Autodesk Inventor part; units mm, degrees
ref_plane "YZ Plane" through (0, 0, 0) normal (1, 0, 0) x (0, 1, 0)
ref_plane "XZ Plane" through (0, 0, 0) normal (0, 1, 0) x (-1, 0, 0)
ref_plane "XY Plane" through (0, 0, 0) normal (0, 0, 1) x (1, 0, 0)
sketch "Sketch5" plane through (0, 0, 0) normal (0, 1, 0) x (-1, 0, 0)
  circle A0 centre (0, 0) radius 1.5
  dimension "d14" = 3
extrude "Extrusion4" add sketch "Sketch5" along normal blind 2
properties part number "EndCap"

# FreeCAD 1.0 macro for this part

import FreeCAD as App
import Part
import Sketcher
Q = App.Units.Quantity

doc = App.newDocument("Part")
params = doc.addObject("Spreadsheet::Sheet", "Params")
for row, (alias, value) in enumerate([
    ("sketch1_diameter", "3 mm"),
    ("pad1_length", "2 mm"),
], start=1):
    params.set(f"A{row}", alias)
    params.set(f"B{row}", "=" + value)
    params.setAlias(f"B{row}", alias)

body = doc.addObject("PartDesign::Body", "Body")

# Sketch on XZ plane
sketch1 = body.newObject("Sketcher::SketchObject", "Sketch")
sketch1.AttachmentSupport = (doc.getObject("XZ_Plane"), [""])
sketch1.MapMode = "FlatFace"
sketch1.addGeometry(Part.Circle(App.Vector(0, 0, 0), App.Vector(0, 0, 1), 1.5), False)
sketch1.addConstraint([
    Sketcher.Constraint("Coincident", 0, 3, -1, 1),
    Sketcher.Constraint("Diameter", 0, Q("3 mm")),
])
sketch1.setExpression("Constraints[1]", "Params.sketch1_diameter")
pad1 = body.newObject("PartDesign::Pad", "Pad")
pad1.Profile = sketch1
pad1.setExpression("Length", "Params.pad1_length")
pad1.Reversed = True

doc.recompute()
